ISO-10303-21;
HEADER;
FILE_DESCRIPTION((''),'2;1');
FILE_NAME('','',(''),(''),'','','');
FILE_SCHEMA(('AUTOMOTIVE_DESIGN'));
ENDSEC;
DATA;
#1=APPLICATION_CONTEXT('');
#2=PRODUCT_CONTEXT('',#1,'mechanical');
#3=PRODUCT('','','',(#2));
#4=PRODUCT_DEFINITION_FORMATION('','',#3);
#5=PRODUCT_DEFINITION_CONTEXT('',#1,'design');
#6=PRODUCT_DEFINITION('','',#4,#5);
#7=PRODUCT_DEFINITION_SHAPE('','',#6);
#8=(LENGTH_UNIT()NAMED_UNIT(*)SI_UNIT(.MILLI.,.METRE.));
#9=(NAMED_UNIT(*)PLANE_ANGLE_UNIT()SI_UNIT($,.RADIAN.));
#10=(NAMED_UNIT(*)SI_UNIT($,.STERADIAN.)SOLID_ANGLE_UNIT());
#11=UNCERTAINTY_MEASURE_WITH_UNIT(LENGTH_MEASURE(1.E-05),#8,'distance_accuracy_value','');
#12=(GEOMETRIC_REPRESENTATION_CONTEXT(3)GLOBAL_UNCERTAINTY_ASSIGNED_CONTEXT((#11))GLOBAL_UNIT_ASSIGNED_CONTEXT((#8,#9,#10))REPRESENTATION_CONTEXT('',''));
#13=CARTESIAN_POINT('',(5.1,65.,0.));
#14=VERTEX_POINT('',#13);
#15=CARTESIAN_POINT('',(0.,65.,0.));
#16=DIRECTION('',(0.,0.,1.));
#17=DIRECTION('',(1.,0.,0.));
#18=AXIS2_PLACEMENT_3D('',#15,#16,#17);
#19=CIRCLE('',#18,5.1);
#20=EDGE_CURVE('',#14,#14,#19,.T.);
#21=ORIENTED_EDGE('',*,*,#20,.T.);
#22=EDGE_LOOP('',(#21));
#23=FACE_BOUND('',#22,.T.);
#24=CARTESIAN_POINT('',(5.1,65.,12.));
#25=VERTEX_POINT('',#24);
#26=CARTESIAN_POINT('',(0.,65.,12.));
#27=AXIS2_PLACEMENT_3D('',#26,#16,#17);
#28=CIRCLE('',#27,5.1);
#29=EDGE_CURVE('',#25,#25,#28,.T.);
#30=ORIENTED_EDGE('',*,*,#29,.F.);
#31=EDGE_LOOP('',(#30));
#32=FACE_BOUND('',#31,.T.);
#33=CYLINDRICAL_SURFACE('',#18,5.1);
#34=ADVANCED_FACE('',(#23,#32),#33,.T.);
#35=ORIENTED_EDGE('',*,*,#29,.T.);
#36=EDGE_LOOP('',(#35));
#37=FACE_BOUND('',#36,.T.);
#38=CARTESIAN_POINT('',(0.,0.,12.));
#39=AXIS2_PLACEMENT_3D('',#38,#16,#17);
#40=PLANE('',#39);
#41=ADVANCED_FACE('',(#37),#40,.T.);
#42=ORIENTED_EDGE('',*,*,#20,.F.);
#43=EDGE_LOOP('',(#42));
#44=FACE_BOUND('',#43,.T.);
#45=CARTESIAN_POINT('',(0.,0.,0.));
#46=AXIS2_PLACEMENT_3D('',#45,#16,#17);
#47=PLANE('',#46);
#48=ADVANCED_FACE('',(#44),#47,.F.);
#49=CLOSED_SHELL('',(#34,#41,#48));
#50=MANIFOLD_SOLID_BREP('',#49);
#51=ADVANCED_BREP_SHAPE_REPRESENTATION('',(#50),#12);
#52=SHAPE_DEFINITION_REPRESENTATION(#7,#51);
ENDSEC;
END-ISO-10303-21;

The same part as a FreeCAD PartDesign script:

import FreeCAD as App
import Part
import Sketcher
from FreeCAD import Vector


def add_polygon(sketch, points):
    """Adds a closed chain of lines whose ends are joined by coincident constraints."""
    first, n = sketch.GeometryCount, len(points)
    for a, b in zip(points, points[1:] + points[:1]):
        sketch.addGeometry(Part.LineSegment(App.Vector(*a, 0), App.Vector(*b, 0)), False)
    for i in range(n):
        sketch.addConstraint(Sketcher.Constraint("Coincident", first + i, 2, first + (i + 1) % n, 1))

doc = App.newDocument("Part")
body = doc.addObject("PartDesign::Body", "Body")

# Sketch on XY plane
sketch1 = body.newObject("Sketcher::SketchObject", "Sketch")
sketch1.AttachmentSupport = (doc.getObject("XY_Plane"), [""])
sketch1.MapMode = "FlatFace"
add_polygon(sketch1, [(-45, 0), (45, 0), (45, 15), (10, 15), (10, 90), (-10, 90), (-10, 15), (-45, 15)])  # lines 0-7
sketch1.addConstraint([
    Sketcher.Constraint("Horizontal", 0),
    Sketcher.Constraint("Vertical", 1),
    Sketcher.Constraint("Horizontal", 2),
    Sketcher.Constraint("Vertical", 3),
    Sketcher.Constraint("Horizontal", 4),
    Sketcher.Constraint("Vertical", 5),
    Sketcher.Constraint("Horizontal", 6),
    Sketcher.Constraint("Vertical", 7),
    Sketcher.Constraint("Symmetric", 0, 2, 7, 2, -1, 1),
    Sketcher.Constraint("Symmetric", 2, 2, 5, 2, -2),
    Sketcher.Constraint("DistanceX", 0, 1, 0, 2, 90.0),
    Sketcher.Constraint("DistanceX", 2, 2, 2, 1, 35.0),
    Sketcher.Constraint("DistanceY", 1, 1, 1, 2, 15.0),
    Sketcher.Constraint("DistanceY", 3, 1, 3, 2, 75.0),
])
pad1 = body.newObject("PartDesign::Pad", "Pad")
pad1.Profile = sketch1
pad1.Length = 12

# Sketch on XY plane
sketch2 = body.newObject("Sketcher::SketchObject", "Sketch001")
sketch2.AttachmentSupport = (doc.getObject("XY_Plane"), [""])
sketch2.MapMode = "FlatFace"
sketch2.AttachmentOffset = App.Placement(Vector(0, 0, 12), App.Rotation())
add_polygon(sketch2, [(-58.784, 103.784), (-58.784, -13.784), (58.784, -13.784), (58.784, 103.784)])  # lines 0-3
sketch2.addGeometry(Part.Circle(Vector(0, 65, 0), Vector(0, 0, 1), 5.1), False)  # 4
sketch2.addConstraint([
    Sketcher.Constraint("Vertical", 0),
    Sketcher.Constraint("Horizontal", 1),
    Sketcher.Constraint("Vertical", 2),
    Sketcher.Constraint("Horizontal", 3),
    Sketcher.Constraint("PointOnObject", 4, 3, -2),
    Sketcher.Constraint("Equal", 3, 0),
    Sketcher.Constraint("Diameter", 4, 10.2),
    Sketcher.Constraint("DistanceY", -1, 1, 4, 3, 65.0),
    Sketcher.Constraint("DistanceX", 1, 1, 1, 2, 117.568),
    Sketcher.Constraint("DistanceX", 0, 2, -1, 1, 58.784),
    Sketcher.Constraint("DistanceY", 0, 2, -1, 1, 13.784),
])
pocket1 = body.newObject("PartDesign::Pocket", "Pocket")
pocket1.Profile = sketch2
pocket1.Type = "ThroughAll"

doc.recompute()
